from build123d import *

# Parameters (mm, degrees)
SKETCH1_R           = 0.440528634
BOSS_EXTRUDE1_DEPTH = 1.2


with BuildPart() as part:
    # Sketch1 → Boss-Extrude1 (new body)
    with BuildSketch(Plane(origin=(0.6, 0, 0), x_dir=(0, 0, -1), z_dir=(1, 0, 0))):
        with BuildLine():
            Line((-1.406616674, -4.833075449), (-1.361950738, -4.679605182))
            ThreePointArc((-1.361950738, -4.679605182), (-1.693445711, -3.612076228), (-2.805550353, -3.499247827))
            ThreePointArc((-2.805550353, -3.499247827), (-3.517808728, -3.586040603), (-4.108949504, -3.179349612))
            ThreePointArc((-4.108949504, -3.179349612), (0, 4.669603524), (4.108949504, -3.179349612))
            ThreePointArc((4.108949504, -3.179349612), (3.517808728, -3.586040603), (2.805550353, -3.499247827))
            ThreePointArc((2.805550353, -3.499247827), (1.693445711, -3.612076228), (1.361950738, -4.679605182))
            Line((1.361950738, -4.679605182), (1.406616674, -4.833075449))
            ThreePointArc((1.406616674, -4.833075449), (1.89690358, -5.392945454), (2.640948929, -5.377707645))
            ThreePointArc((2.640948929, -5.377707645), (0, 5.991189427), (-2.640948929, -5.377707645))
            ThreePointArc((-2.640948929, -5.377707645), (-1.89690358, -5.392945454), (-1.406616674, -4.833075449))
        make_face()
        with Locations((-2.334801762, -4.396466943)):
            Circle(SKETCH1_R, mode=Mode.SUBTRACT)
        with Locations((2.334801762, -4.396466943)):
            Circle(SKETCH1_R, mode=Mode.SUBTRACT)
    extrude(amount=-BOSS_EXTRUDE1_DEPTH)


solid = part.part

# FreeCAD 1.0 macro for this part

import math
import FreeCAD as App
import Part
import Sketcher
from FreeCAD import Vector

doc = App.newDocument("Part")
body = doc.addObject("PartDesign::Body", "Body")

# Sketch on YZ plane
sketch1 = doc.addObject("Sketcher::SketchObject", "Sketch")
body.addObject(sketch1)
sketch1.AttachmentSupport = (doc.YZ_Plane, [""])
sketch1.MapMode = "FlatFace"
sketch1.AttachmentOffset = App.Placement(Vector(0, 0, 0.6), App.Rotation())
sketch1.addGeometry(Part.LineSegment(Vector(-4.833075, 1.406617, 0), Vector(-4.679605, 1.361951, 0)), False)
sketch1.addGeometry(Part.ArcOfCircle(Part.Circle(Vector(-4.396467, 2.334802, 0), Vector(0, 0, 1), 1.013216), math.radians(-106.227091), math.radians(27.684881)), False)
sketch1.addGeometry(Part.ArcOfCircle(Part.Circle(Vector(-2.602029, 3.276299, 0), Vector(0, 0, 1), 1.013216), math.radians(124.735627), math.radians(207.684881)), False)
sketch1.addGeometry(Part.ArcOfCircle(Part.Circle(Vector(-0.330396, 0, 0), Vector(0, 0, 1), 5), math.radians(-124.735627), math.radians(124.735627)), False)
sketch1.addGeometry(Part.ArcOfCircle(Part.Circle(Vector(-2.602029, -3.276299, 0), Vector(0, 0, 1), 1.013216), math.radians(152.315119), math.radians(235.264373)), False)
sketch1.addGeometry(Part.ArcOfCircle(Part.Circle(Vector(-4.396467, -2.334802, 0), Vector(0, 0, 1), 1.013216), math.radians(-27.684881), math.radians(106.227091)), False)
sketch1.addGeometry(Part.LineSegment(Vector(-4.679605, -1.361951, 0), Vector(-4.833075, -1.406617, 0)), False)
sketch1.addGeometry(Part.ArcOfCircle(Part.Circle(Vector(-4.586868, -2.252574, 0), Vector(0, 0, 1), 0.881057), math.radians(106.227091), math.radians(206.155283)), False)
sketch1.addGeometry(Part.ArcOfCircle(Part.Circle(Vector(0, 0, 0), Vector(0, 0, 1), 5.991189), math.radians(-153.844717), math.radians(153.844717)), False)
sketch1.addGeometry(Part.ArcOfCircle(Part.Circle(Vector(-4.586868, 2.252574, 0), Vector(0, 0, 1), 0.881057), math.radians(153.844717), math.radians(253.772909)), False)
sketch1.addGeometry(Part.Circle(Vector(-4.396467, 2.334802, 0), Vector(0, 0, 1), 0.440529), False)
sketch1.addGeometry(Part.Circle(Vector(-4.396467, -2.334802, 0), Vector(0, 0, 1), 0.440529), False)
sketch1.addConstraint(Sketcher.Constraint("Tangent", 0, 2, 1, 1))
sketch1.addConstraint(Sketcher.Constraint("Tangent", 1, 2, 2, 2))
sketch1.addConstraint(Sketcher.Constraint("Tangent", 2, 1, 3, 2))
sketch1.addConstraint(Sketcher.Constraint("Tangent", 3, 1, 4, 2))
sketch1.addConstraint(Sketcher.Constraint("Tangent", 4, 1, 5, 1))
sketch1.addConstraint(Sketcher.Constraint("Tangent", 5, 2, 6, 1))
sketch1.addConstraint(Sketcher.Constraint("Tangent", 6, 2, 7, 1))
sketch1.addConstraint(Sketcher.Constraint("Tangent", 7, 2, 8, 1))
sketch1.addConstraint(Sketcher.Constraint("Tangent", 8, 2, 9, 1))
sketch1.addConstraint(Sketcher.Constraint("Tangent", 9, 2, 0, 1))
sketch1.addConstraint(Sketcher.Constraint("Coincident", 8, 3, -1, 1))
sketch1.addConstraint(Sketcher.Constraint("Coincident", 10, 3, 1, 3))
sketch1.addConstraint(Sketcher.Constraint("Coincident", 11, 3, 5, 3))
sketch1.addConstraint(Sketcher.Constraint("Equal", 1, 2))
sketch1.addConstraint(Sketcher.Constraint("Equal", 2, 4))
sketch1.addConstraint(Sketcher.Constraint("Equal", 4, 5))
sketch1.addConstraint(Sketcher.Constraint("Equal", 7, 9))
sketch1.addConstraint(Sketcher.Constraint("Equal", 10, 11))
sketch1.addConstraint(Sketcher.Constraint("Symmetric", 2, 3, 4, 3, -1))
sketch1.addConstraint(Sketcher.Constraint("Symmetric", 0, 2, 5, 2, -1))
sketch1.addConstraint(Sketcher.Constraint("Radius", 3, 5.0))
sketch1.addConstraint(Sketcher.Constraint("Radius", 8, 5.991189))
sketch1.addConstraint(Sketcher.Constraint("Diameter", 10, 0.881057))
sketch1.addConstraint(Sketcher.Constraint("Radius", 1, 1.013216))
sketch1.addConstraint(Sketcher.Constraint("Radius", 7, 0.881057))
sketch1.addConstraint(Sketcher.Constraint("DistanceY", 7, 2, 5, 2, 1.278998))
sketch1.addConstraint(Sketcher.Constraint("DistanceY", -1, 1, 1, 3, 2.334802))
sketch1.addConstraint(Sketcher.Constraint("DistanceY", -1, 1, 2, 3, 3.276299))
sketch1.addConstraint(Sketcher.Constraint("DistanceX", 7, 3, 5, 3, 0.190401))
pad1 = doc.addObject("PartDesign::Pad", "Pad")
body.addObject(pad1)
pad1.Profile = sketch1
pad1.Length = 1.2
pad1.Reversed = True

doc.recompute()
